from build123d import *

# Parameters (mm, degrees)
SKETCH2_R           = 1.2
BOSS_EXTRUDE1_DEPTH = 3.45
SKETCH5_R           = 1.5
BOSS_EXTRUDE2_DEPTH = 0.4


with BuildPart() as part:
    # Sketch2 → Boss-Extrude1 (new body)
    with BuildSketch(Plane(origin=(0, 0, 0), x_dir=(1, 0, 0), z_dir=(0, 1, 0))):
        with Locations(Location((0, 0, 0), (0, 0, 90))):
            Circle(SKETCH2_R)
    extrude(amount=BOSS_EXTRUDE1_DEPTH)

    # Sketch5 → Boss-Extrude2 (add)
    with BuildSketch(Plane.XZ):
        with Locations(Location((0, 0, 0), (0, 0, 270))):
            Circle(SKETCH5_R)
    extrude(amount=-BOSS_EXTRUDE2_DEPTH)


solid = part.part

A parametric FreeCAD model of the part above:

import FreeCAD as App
import Part
import Sketcher
Q = App.Units.Quantity

doc = App.newDocument("Part")
body = doc.addObject("PartDesign::Body", "Body")

sketch1 = body.newObject("Sketcher::SketchObject", "Sketch")
sketch1.AttachmentSupport = (doc.getObject("XZ_Plane"), [""])
sketch1.MapMode = "FlatFace"
sketch1.addGeometry(Part.Circle(App.Vector(0, 0, 0), App.Vector(0, 0, 1), 1.2), False)
sketch1.addConstraint(Sketcher.Constraint("Coincident", 0, 3, -1, 1))
sketch1.addConstraint(Sketcher.Constraint("Diameter", 0, Q("2.4 mm")))
pad1 = body.newObject("PartDesign::Pad", "Pad")
pad1.Profile = sketch1
pad1.Length = 3.45
pad1.Reversed = True

sketch2 = body.newObject("Sketcher::SketchObject", "Sketch001")
sketch2.AttachmentSupport = (doc.getObject("XZ_Plane"), [""])
sketch2.MapMode = "FlatFace"
sketch2.addGeometry(Part.Circle(App.Vector(0, 0, 0), App.Vector(0, 0, 1), 1.5), False)
sketch2.addConstraint(Sketcher.Constraint("Coincident", 0, 3, -1, 1))
sketch2.addConstraint(Sketcher.Constraint("Diameter", 0, Q("3 mm")))
pad2 = body.newObject("PartDesign::Pad", "Pad001")
pad2.Profile = sketch2
pad2.Length = 0.4
pad2.Reversed = True

doc.recompute()
